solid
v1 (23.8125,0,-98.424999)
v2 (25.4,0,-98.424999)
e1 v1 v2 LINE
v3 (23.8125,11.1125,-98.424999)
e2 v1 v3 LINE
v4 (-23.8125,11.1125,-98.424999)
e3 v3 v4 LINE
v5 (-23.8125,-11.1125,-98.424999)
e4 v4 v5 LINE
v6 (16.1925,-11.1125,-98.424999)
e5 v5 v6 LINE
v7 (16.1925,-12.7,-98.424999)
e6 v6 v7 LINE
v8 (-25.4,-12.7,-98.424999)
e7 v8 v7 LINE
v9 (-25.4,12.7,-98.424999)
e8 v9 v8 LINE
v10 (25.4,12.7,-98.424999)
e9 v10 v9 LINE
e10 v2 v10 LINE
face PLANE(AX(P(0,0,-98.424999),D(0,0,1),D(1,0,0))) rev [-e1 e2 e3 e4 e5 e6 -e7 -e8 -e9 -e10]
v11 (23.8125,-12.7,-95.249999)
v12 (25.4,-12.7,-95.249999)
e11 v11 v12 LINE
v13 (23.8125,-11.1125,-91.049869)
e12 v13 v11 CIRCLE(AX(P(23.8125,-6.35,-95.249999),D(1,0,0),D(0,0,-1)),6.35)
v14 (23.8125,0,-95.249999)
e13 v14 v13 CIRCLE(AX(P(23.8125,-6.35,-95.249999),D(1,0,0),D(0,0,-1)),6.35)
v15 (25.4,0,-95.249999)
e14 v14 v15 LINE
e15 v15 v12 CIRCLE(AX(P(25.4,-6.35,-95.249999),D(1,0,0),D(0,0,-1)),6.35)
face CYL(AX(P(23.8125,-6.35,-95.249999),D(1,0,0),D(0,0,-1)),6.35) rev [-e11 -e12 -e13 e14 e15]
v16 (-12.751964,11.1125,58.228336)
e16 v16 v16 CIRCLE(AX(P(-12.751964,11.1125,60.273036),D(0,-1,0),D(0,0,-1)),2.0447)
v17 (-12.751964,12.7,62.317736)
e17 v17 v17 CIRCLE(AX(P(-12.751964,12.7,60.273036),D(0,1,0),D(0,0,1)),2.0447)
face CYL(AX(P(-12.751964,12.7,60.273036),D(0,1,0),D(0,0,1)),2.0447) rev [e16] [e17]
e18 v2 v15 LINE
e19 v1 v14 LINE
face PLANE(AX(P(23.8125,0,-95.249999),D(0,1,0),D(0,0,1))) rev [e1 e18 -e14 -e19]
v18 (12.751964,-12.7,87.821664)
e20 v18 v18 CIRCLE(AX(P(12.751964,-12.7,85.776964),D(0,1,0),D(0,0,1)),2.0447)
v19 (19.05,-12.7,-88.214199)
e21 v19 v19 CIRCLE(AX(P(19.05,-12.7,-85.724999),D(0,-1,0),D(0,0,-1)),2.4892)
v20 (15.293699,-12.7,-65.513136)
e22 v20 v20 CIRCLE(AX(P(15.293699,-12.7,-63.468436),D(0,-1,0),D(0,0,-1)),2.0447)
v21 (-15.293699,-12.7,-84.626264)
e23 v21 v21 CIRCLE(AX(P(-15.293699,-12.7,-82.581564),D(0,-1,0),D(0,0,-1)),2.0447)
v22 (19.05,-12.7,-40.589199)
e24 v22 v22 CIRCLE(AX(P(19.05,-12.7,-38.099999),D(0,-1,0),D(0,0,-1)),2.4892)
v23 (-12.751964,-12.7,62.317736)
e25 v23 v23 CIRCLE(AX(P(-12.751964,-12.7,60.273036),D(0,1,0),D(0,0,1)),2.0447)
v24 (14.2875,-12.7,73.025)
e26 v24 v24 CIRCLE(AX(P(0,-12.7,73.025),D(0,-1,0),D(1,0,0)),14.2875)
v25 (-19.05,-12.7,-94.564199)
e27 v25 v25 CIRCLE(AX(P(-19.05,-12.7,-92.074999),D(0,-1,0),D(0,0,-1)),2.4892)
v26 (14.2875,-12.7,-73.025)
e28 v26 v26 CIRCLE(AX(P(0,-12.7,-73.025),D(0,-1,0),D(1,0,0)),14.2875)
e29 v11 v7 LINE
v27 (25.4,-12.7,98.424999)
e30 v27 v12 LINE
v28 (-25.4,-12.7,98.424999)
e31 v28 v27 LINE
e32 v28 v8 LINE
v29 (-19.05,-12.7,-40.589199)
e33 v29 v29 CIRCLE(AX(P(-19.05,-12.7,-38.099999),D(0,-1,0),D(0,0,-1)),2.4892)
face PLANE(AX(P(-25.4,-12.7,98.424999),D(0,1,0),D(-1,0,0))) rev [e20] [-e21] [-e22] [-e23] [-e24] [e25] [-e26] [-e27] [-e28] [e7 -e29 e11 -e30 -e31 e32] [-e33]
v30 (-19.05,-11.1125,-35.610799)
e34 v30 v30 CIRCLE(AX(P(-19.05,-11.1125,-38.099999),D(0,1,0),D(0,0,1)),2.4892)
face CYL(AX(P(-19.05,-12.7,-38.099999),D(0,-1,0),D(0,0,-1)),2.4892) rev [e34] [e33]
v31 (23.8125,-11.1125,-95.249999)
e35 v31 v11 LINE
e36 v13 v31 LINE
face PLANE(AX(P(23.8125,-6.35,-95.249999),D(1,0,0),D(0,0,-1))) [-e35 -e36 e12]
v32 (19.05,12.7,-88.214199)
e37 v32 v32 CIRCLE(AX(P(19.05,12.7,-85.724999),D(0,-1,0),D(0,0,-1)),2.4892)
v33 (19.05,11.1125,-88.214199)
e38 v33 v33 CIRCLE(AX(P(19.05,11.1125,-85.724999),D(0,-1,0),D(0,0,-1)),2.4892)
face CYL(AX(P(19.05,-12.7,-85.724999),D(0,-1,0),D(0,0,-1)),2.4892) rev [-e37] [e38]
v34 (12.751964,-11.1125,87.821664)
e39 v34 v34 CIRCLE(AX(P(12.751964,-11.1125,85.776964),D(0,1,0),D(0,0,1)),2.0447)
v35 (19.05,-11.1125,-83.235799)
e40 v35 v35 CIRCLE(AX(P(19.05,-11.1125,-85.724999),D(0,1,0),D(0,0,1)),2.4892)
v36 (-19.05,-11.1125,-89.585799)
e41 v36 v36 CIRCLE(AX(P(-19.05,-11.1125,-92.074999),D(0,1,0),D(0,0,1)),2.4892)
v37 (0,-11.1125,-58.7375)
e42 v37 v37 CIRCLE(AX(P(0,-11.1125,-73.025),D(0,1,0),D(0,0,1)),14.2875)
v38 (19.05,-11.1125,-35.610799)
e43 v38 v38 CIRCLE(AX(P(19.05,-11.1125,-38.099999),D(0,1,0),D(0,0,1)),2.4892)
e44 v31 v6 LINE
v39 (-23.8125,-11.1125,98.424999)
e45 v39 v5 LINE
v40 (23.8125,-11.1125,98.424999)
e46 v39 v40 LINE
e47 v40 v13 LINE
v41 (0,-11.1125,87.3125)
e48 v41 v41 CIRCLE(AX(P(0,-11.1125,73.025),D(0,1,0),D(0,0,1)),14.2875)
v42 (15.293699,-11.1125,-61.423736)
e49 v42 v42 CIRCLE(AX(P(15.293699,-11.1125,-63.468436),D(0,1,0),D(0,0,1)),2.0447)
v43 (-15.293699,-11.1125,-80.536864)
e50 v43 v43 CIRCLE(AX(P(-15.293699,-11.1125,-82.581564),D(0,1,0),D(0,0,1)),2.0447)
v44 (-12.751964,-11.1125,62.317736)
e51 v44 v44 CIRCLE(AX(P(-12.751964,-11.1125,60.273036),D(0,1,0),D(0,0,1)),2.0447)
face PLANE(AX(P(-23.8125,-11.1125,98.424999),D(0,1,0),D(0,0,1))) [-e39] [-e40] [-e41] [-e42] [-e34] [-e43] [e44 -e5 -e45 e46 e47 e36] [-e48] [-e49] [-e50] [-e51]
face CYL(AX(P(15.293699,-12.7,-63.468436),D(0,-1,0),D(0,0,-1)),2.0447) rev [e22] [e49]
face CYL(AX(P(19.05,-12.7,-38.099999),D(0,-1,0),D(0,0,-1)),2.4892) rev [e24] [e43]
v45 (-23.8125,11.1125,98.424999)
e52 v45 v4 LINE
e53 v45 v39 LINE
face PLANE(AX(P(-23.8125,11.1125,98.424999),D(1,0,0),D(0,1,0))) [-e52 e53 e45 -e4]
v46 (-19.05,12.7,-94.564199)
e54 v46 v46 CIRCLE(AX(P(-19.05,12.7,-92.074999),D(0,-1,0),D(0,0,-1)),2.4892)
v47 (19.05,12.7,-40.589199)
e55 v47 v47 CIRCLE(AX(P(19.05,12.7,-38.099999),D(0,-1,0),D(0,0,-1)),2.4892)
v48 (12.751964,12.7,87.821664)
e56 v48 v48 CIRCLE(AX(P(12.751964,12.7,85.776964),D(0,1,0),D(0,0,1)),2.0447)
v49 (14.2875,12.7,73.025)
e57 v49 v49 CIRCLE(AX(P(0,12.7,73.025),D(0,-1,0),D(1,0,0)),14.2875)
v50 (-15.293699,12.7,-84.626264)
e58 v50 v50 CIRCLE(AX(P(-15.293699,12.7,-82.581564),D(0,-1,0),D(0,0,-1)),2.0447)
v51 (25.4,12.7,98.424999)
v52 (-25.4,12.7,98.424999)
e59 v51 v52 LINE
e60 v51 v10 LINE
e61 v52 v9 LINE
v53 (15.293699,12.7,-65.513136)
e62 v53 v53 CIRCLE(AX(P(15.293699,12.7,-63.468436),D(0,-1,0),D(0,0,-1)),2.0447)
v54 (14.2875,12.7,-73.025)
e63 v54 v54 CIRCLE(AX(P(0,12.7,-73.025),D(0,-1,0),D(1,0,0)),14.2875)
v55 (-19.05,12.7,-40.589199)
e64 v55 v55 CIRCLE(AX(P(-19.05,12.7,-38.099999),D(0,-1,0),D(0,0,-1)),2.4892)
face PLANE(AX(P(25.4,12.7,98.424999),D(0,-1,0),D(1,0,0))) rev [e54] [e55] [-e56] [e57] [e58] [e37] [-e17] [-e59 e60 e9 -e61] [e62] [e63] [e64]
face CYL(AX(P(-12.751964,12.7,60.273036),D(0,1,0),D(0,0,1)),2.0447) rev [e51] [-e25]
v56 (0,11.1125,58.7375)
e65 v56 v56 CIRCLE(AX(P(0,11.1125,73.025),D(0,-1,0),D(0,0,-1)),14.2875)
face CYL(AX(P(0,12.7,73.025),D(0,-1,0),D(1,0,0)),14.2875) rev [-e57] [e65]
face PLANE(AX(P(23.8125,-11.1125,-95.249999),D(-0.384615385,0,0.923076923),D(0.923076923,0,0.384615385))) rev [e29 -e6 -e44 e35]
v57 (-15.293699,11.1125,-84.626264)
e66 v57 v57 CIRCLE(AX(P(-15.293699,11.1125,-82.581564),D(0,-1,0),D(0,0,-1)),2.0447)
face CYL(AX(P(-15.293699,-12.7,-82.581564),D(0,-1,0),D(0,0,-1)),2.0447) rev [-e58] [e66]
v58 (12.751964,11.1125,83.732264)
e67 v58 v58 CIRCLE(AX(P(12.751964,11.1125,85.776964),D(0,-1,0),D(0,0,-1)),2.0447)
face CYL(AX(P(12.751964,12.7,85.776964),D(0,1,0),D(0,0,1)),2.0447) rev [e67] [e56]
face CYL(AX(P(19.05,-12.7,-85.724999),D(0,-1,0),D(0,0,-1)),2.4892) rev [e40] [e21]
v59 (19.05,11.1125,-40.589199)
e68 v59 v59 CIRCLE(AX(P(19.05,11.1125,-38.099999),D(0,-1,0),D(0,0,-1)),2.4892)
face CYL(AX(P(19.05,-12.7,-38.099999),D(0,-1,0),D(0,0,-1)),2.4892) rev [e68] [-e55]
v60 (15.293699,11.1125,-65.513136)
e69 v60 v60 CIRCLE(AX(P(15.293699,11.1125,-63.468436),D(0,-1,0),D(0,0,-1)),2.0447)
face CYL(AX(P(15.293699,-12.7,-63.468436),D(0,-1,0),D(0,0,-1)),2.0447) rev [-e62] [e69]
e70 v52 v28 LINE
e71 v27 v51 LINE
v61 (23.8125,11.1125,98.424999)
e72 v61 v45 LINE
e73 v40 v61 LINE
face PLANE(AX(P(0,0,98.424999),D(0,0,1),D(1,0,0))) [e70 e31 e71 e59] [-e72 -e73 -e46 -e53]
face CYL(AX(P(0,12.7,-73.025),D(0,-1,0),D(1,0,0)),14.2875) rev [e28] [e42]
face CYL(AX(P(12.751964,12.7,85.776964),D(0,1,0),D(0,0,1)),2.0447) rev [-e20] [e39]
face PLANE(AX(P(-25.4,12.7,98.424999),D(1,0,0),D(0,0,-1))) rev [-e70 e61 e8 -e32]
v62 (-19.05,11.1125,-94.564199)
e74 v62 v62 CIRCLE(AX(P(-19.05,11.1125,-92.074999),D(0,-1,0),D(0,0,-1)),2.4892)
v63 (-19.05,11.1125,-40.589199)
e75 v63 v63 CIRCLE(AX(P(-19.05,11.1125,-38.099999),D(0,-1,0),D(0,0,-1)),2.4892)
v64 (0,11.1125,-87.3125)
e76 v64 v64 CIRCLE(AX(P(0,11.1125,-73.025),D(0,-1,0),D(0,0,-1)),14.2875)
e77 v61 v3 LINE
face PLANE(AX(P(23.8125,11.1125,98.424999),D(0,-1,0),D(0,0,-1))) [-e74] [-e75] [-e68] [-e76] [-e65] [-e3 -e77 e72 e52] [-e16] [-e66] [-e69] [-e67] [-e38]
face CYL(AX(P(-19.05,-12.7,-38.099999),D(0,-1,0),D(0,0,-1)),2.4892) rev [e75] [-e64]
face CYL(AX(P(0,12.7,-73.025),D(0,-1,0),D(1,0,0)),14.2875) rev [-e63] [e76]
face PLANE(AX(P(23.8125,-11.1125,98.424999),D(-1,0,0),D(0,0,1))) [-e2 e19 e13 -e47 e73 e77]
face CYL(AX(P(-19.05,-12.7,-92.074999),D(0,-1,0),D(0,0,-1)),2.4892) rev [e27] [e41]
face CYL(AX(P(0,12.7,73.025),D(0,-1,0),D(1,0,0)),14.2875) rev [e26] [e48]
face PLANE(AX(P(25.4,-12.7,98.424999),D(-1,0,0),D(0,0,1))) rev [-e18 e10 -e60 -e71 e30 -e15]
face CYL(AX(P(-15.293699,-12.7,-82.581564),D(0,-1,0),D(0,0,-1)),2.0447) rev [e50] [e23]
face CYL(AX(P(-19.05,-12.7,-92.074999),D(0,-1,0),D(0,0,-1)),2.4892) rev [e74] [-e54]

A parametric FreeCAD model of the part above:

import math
import FreeCAD as App
import Part
import Sketcher
Q = App.Units.Quantity

doc = App.newDocument("Part")
body = doc.addObject("PartDesign::Body", "Body")

# Sketch on XY plane
sketch1 = body.newObject("Sketcher::SketchObject", "Sketch")
sketch1.AttachmentSupport = (doc.getObject("XY_Plane"), [""])
sketch1.MapMode = "FlatFace"
sketch1.addGeometry([
    Part.LineSegment(App.Vector(-25.4, 12.7, 0), App.Vector(-25.4, -12.7, 0)),  # 0
    Part.LineSegment(App.Vector(-25.4, -12.7, 0), App.Vector(25.4, -12.7, 0)),  # 1
    Part.LineSegment(App.Vector(25.4, -12.7, 0), App.Vector(25.4, 12.7, 0)),  # 2
    Part.LineSegment(App.Vector(25.4, 12.7, 0), App.Vector(-25.4, 12.7, 0)),  # 3
    Part.LineSegment(App.Vector(23.8125, -11.1125, 0), App.Vector(-23.8125, -11.1125, 0)),  # 4
    Part.LineSegment(App.Vector(-23.8125, -11.1125, 0), App.Vector(-23.8125, 11.1125, 0)),  # 5
    Part.LineSegment(App.Vector(-23.8125, 11.1125, 0), App.Vector(23.8125, 11.1125, 0)),  # 6
    Part.LineSegment(App.Vector(23.8125, 11.1125, 0), App.Vector(23.8125, -11.1125, 0)),  # 7
], False)
sketch1.addConstraint([
    Sketcher.Constraint("Coincident", 0, 2, 1, 1),
    Sketcher.Constraint("Coincident", 1, 2, 2, 1),
    Sketcher.Constraint("Coincident", 2, 2, 3, 1),
    Sketcher.Constraint("Coincident", 3, 2, 0, 1),
    Sketcher.Constraint("Coincident", 4, 2, 5, 1),
    Sketcher.Constraint("Coincident", 5, 2, 6, 1),
    Sketcher.Constraint("Coincident", 6, 2, 7, 1),
    Sketcher.Constraint("Coincident", 7, 2, 4, 1),
    Sketcher.Constraint("Vertical", 0),
    Sketcher.Constraint("Horizontal", 1),
    Sketcher.Constraint("Vertical", 2),
    Sketcher.Constraint("Horizontal", 3),
    Sketcher.Constraint("Horizontal", 4),
    Sketcher.Constraint("Vertical", 5),
    Sketcher.Constraint("Horizontal", 6),
    Sketcher.Constraint("Vertical", 7),
    Sketcher.Constraint("Symmetric", 0, 2, 2, 2, -1, 1),
    Sketcher.Constraint("Symmetric", 4, 2, 6, 2, -1, 1),
    Sketcher.Constraint("DistanceX", 1, 1, 1, 2, Q("2 in")),
    Sketcher.Constraint("DistanceY", 0, 2, 0, 1, Q("1 in")),
    Sketcher.Constraint("DistanceX", 4, 2, 4, 1, Q("1.875 in")),
    Sketcher.Constraint("DistanceY", 5, 1, 5, 2, Q("0.875 in")),
])
pad1 = body.newObject("PartDesign::Pad", "Pad")
pad1.Profile = sketch1
pad1.Type = "TwoLengths"
pad1.Length = Q("3.875 in")
pad1.Length2 = Q("3.875 in")

# Sketch on XZ plane
sketch2 = body.newObject("Sketcher::SketchObject", "Sketch001")
sketch2.AttachmentSupport = (doc.getObject("XZ_Plane"), [""])
sketch2.MapMode = "FlatFace"
sketch2.AttachmentOffset = App.Placement(App.Vector(0, 0, 0.5 * 25.4), App.Rotation())
sketch2.addGeometry([
    Part.Circle(App.Vector(0, 73.025, 0), App.Vector(0, 0, 1), 14.2875),
    Part.Circle(App.Vector(0, -73.025, 0), App.Vector(0, 0, 1), 14.2875),
], False)
sketch2.addConstraint([
    Sketcher.Constraint("Equal", 0, 1),
    Sketcher.Constraint("Symmetric", 0, 3, 1, 3, -1, 1),
    Sketcher.Constraint("PointOnObject", 0, 3, -2),
    Sketcher.Constraint("Diameter", 0, Q("1.125 in")),
    Sketcher.Constraint("DistanceY", 1, 3, 0, 3, Q("5.75 in")),
])
pocket1 = body.newObject("PartDesign::Pocket", "Pocket")
pocket1.Profile = sketch2
pocket1.Type = "ThroughAll"

# Sketch on YZ plane
sketch3 = body.newObject("Sketcher::SketchObject", "Sketch002")
sketch3.AttachmentSupport = (doc.getObject("YZ_Plane"), [""])
sketch3.MapMode = "FlatFace"
sketch3.AttachmentOffset = App.Placement(App.Vector(0, 0, 1 * 25.4), App.Rotation())
sketch3.addGeometry([
    Part.LineSegment(App.Vector(-12.7, -98.424999, 0), App.Vector(0, -98.424999, 0)),
    Part.LineSegment(App.Vector(0, -98.424999, 0), App.Vector(0, -95.249999, 0)),
    Part.ArcOfCircle(Part.Circle(App.Vector(-6.35, -95.249999, 0), App.Vector(0, 0, 1), 6.35), math.radians(0), math.radians(180)),
    Part.LineSegment(App.Vector(-12.7, -95.249999, 0), App.Vector(-12.7, -98.424999, 0)),
], False)
sketch3.addConstraint([
    Sketcher.Constraint("Coincident", 0, 2, 1, 1),
    Sketcher.Constraint("Tangent", 1, 2, 2, 1),
    Sketcher.Constraint("Tangent", 2, 2, 3, 1),
    Sketcher.Constraint("Coincident", 3, 2, 0, 1),
    Sketcher.Constraint("Horizontal", 0),
    Sketcher.Constraint("Vertical", 1),
    Sketcher.Constraint("Vertical", 3),
    Sketcher.Constraint("PointOnObject", 0, 2, -2),
    Sketcher.Constraint("Radius", 2, Q("0.25 in")),
    Sketcher.Constraint("DistanceY", 1, 1, 1, 2, Q("0.125 in")),
    Sketcher.Constraint("DistanceY", 2, 3, -1, 1, Q("3.75 in")),
])
pocket2 = body.newObject("PartDesign::Pocket", "Pocket001")
pocket2.Profile = sketch3
pocket2.Length = Q("0.0625 in")

# Sketch on XZ plane
sketch4 = body.newObject("Sketcher::SketchObject", "Sketch003")
sketch4.AttachmentSupport = (doc.getObject("XZ_Plane"), [""])
sketch4.MapMode = "FlatFace"
sketch4.AttachmentOffset = App.Placement(App.Vector(0, 0, 0.5 * 25.4), App.Rotation())
sketch4.addGeometry([
    Part.LineSegment(App.Vector(23.8125, -98.424999, 0), App.Vector(23.8125, -95.249999, 0)),
    Part.LineSegment(App.Vector(23.8125, -95.249999, 0), App.Vector(16.1925, -98.424999, 0)),
    Part.LineSegment(App.Vector(16.1925, -98.424999, 0), App.Vector(23.8125, -98.424999, 0)),
], False)
sketch4.addConstraint([
    Sketcher.Constraint("Coincident", 0, 2, 1, 1),
    Sketcher.Constraint("Coincident", 1, 2, 2, 1),
    Sketcher.Constraint("Coincident", 2, 2, 0, 1),
    Sketcher.Constraint("Vertical", 0),
    Sketcher.Constraint("Horizontal", 2),
    Sketcher.Constraint("DistanceX", 2, 1, 2, 2, Q("0.3 in")),
    Sketcher.Constraint("DistanceY", 0, 1, 0, 2, Q("0.125 in")),
    Sketcher.Constraint("DistanceY", 0, 2, -1, 1, Q("3.75 in")),
    Sketcher.Constraint("DistanceX", -1, 1, 0, 2, Q("0.9375 in")),
])
pocket3 = body.newObject("PartDesign::Pocket", "Pocket002")
pocket3.Profile = sketch4
pocket3.Length = Q("0.0625 in")

# Sketch on XZ plane
sketch5 = body.newObject("Sketcher::SketchObject", "Sketch004")
sketch5.AttachmentSupport = (doc.getObject("XZ_Plane"), [""])
sketch5.MapMode = "FlatFace"
sketch5.AttachmentOffset = App.Placement(App.Vector(0, 0, 0.5 * 25.4), App.Rotation())
sketch5.addGeometry([
    Part.Circle(App.Vector(19.05, -85.724999, 0), App.Vector(0, 0, 1), 2.4892),
    Part.Circle(App.Vector(-19.05, -92.074999, 0), App.Vector(0, 0, 1), 2.4892),
    Part.Circle(App.Vector(-19.05, -38.099999, 0), App.Vector(0, 0, 1), 2.4892),
    Part.Circle(App.Vector(19.05, -38.099999, 0), App.Vector(0, 0, 1), 2.4892),
], False)
sketch5.addConstraint([
    Sketcher.Constraint("Equal", 0, 1),
    Sketcher.Constraint("Equal", 1, 2),
    Sketcher.Constraint("Equal", 2, 3),
    Sketcher.Constraint("Symmetric", 2, 3, 3, 3, -2),
    Sketcher.Constraint("Vertical", 1, 3, 2, 3),
    Sketcher.Constraint("Vertical", 0, 3, 3, 3),
    Sketcher.Constraint("Diameter", 0, Q("0.196 in")),
    Sketcher.Constraint("DistanceY", 2, 3, -1, 1, Q("1.5 in")),
    Sketcher.Constraint("DistanceX", 1, 3, 0, 3, Q("1.5 in")),
    Sketcher.Constraint("DistanceY", 1, 3, 0, 3, Q("0.25 in")),
    Sketcher.Constraint("DistanceY", 0, 3, -1, 1, Q("3.375 in")),
])
doc.recompute()
hole = body.newObject("PartDesign::Hole", "Hole")
hole.Profile = sketch5
hole.ThreadType = "None"
hole.Diameter = Q("0.196 in")
hole.DepthType = "ThroughAll"

# Sketch on XZ plane
sketch6 = body.newObject("Sketcher::SketchObject", "Sketch005")
sketch6.AttachmentSupport = (doc.getObject("XZ_Plane"), [""])
sketch6.MapMode = "FlatFace"
sketch6.AttachmentOffset = App.Placement(App.Vector(0, 0, 0.5 * 25.4), App.Rotation())
sketch6.addGeometry([
    Part.Circle(App.Vector(-15.293699, -82.581564, 0), App.Vector(0, 0, 1), 2.0447),
    Part.Circle(App.Vector(15.293699, -63.468436, 0), App.Vector(0, 0, 1), 2.0447),
], False)
sketch6.addConstraint([
    Sketcher.Constraint("Equal", 0, 1),
    Sketcher.Constraint("Diameter", 0, Q("0.161 in")),
    Sketcher.Constraint("DistanceX", 0, 3, -1, 1, 15.293699),
    Sketcher.Constraint("DistanceX", -1, 1, 1, 3, 15.293699),
    Sketcher.Constraint("DistanceY", 0, 3, 1, 3, 19.113128),
    Sketcher.Constraint("DistanceY", 0, 3, -1, 1, 82.581564),
])
doc.recompute()
hole2 = body.newObject("PartDesign::Hole", "Hole001")
hole2.Profile = sketch6
hole2.ThreadType = "None"
hole2.Diameter = Q("0.161 in")
hole2.DepthType = "ThroughAll"

# Sketch on XZ plane
sketch7 = body.newObject("Sketcher::SketchObject", "Sketch006")
sketch7.AttachmentSupport = (doc.getObject("XZ_Plane"), [""])
sketch7.MapMode = "FlatFace"
sketch7.AttachmentOffset = App.Placement(App.Vector(0, 0, -0.5 * 25.4), App.Rotation())
sketch7.addGeometry([
    Part.Circle(App.Vector(-12.751964, 60.273036, 0), App.Vector(0, 0, 1), 2.0447),
    Part.Circle(App.Vector(12.751964, 85.776964, 0), App.Vector(0, 0, 1), 2.0447),
], False)
sketch7.addConstraint([
    Sketcher.Constraint("Equal", 0, 1),
    Sketcher.Constraint("Diameter", 0, Q("0.161 in")),
    Sketcher.Constraint("DistanceX", 0, 3, -1, 1, 12.751964),
    Sketcher.Constraint("DistanceY", -1, 1, 0, 3, 60.273036),
    Sketcher.Constraint("DistanceX", -1, 1, 1, 3, 12.751964),
    Sketcher.Constraint("DistanceY", -1, 1, 1, 3, 85.776964),
])
doc.recompute()
hole3 = body.newObject("PartDesign::Hole", "Hole002")
hole3.Profile = sketch7
hole3.ThreadType = "None"
hole3.Diameter = Q("0.161 in")
hole3.DepthType = "ThroughAll"
hole3.Reversed = True

doc.recompute()
